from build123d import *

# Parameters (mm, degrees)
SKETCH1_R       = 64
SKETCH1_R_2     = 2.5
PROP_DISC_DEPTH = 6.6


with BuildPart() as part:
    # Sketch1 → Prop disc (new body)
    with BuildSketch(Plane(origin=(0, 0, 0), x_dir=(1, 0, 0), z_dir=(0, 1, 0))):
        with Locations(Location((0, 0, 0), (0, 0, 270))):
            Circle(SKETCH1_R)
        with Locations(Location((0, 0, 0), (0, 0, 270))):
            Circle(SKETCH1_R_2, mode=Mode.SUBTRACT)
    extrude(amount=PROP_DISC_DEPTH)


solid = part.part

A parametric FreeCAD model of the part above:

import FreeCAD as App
import Part
import Sketcher

V = App.Vector
Q = App.Units.Quantity

doc = App.newDocument("Part")
body = doc.addObject("PartDesign::Body", "Body")

sketch1 = body.newObject("Sketcher::SketchObject", "Sketch")
sketch1.AttachmentSupport = (doc.getObject("XZ_Plane"), [""])
sketch1.MapMode = "FlatFace"
sketch1.addGeometry(Part.Circle(V(0, 0, 0), V(0, 0, 1), 64), False)
sketch1.addGeometry(Part.Circle(V(0, 0, 0), V(0, 0, 1), 2.5), False)
sketch1.addConstraint(Sketcher.Constraint("Coincident", 0, 3, -1, 1))
sketch1.addConstraint(Sketcher.Constraint("Coincident", 1, 3, -1, 1))
sketch1.addConstraint(Sketcher.Constraint("Diameter", 0, Q("128 mm")))
sketch1.addConstraint(Sketcher.Constraint("Diameter", 1, Q("5 mm")))
pad1 = body.newObject("PartDesign::Pad", "Pad")
pad1.Profile = sketch1
pad1.Length = 6.6
pad1.Reversed = True

doc.recompute()
